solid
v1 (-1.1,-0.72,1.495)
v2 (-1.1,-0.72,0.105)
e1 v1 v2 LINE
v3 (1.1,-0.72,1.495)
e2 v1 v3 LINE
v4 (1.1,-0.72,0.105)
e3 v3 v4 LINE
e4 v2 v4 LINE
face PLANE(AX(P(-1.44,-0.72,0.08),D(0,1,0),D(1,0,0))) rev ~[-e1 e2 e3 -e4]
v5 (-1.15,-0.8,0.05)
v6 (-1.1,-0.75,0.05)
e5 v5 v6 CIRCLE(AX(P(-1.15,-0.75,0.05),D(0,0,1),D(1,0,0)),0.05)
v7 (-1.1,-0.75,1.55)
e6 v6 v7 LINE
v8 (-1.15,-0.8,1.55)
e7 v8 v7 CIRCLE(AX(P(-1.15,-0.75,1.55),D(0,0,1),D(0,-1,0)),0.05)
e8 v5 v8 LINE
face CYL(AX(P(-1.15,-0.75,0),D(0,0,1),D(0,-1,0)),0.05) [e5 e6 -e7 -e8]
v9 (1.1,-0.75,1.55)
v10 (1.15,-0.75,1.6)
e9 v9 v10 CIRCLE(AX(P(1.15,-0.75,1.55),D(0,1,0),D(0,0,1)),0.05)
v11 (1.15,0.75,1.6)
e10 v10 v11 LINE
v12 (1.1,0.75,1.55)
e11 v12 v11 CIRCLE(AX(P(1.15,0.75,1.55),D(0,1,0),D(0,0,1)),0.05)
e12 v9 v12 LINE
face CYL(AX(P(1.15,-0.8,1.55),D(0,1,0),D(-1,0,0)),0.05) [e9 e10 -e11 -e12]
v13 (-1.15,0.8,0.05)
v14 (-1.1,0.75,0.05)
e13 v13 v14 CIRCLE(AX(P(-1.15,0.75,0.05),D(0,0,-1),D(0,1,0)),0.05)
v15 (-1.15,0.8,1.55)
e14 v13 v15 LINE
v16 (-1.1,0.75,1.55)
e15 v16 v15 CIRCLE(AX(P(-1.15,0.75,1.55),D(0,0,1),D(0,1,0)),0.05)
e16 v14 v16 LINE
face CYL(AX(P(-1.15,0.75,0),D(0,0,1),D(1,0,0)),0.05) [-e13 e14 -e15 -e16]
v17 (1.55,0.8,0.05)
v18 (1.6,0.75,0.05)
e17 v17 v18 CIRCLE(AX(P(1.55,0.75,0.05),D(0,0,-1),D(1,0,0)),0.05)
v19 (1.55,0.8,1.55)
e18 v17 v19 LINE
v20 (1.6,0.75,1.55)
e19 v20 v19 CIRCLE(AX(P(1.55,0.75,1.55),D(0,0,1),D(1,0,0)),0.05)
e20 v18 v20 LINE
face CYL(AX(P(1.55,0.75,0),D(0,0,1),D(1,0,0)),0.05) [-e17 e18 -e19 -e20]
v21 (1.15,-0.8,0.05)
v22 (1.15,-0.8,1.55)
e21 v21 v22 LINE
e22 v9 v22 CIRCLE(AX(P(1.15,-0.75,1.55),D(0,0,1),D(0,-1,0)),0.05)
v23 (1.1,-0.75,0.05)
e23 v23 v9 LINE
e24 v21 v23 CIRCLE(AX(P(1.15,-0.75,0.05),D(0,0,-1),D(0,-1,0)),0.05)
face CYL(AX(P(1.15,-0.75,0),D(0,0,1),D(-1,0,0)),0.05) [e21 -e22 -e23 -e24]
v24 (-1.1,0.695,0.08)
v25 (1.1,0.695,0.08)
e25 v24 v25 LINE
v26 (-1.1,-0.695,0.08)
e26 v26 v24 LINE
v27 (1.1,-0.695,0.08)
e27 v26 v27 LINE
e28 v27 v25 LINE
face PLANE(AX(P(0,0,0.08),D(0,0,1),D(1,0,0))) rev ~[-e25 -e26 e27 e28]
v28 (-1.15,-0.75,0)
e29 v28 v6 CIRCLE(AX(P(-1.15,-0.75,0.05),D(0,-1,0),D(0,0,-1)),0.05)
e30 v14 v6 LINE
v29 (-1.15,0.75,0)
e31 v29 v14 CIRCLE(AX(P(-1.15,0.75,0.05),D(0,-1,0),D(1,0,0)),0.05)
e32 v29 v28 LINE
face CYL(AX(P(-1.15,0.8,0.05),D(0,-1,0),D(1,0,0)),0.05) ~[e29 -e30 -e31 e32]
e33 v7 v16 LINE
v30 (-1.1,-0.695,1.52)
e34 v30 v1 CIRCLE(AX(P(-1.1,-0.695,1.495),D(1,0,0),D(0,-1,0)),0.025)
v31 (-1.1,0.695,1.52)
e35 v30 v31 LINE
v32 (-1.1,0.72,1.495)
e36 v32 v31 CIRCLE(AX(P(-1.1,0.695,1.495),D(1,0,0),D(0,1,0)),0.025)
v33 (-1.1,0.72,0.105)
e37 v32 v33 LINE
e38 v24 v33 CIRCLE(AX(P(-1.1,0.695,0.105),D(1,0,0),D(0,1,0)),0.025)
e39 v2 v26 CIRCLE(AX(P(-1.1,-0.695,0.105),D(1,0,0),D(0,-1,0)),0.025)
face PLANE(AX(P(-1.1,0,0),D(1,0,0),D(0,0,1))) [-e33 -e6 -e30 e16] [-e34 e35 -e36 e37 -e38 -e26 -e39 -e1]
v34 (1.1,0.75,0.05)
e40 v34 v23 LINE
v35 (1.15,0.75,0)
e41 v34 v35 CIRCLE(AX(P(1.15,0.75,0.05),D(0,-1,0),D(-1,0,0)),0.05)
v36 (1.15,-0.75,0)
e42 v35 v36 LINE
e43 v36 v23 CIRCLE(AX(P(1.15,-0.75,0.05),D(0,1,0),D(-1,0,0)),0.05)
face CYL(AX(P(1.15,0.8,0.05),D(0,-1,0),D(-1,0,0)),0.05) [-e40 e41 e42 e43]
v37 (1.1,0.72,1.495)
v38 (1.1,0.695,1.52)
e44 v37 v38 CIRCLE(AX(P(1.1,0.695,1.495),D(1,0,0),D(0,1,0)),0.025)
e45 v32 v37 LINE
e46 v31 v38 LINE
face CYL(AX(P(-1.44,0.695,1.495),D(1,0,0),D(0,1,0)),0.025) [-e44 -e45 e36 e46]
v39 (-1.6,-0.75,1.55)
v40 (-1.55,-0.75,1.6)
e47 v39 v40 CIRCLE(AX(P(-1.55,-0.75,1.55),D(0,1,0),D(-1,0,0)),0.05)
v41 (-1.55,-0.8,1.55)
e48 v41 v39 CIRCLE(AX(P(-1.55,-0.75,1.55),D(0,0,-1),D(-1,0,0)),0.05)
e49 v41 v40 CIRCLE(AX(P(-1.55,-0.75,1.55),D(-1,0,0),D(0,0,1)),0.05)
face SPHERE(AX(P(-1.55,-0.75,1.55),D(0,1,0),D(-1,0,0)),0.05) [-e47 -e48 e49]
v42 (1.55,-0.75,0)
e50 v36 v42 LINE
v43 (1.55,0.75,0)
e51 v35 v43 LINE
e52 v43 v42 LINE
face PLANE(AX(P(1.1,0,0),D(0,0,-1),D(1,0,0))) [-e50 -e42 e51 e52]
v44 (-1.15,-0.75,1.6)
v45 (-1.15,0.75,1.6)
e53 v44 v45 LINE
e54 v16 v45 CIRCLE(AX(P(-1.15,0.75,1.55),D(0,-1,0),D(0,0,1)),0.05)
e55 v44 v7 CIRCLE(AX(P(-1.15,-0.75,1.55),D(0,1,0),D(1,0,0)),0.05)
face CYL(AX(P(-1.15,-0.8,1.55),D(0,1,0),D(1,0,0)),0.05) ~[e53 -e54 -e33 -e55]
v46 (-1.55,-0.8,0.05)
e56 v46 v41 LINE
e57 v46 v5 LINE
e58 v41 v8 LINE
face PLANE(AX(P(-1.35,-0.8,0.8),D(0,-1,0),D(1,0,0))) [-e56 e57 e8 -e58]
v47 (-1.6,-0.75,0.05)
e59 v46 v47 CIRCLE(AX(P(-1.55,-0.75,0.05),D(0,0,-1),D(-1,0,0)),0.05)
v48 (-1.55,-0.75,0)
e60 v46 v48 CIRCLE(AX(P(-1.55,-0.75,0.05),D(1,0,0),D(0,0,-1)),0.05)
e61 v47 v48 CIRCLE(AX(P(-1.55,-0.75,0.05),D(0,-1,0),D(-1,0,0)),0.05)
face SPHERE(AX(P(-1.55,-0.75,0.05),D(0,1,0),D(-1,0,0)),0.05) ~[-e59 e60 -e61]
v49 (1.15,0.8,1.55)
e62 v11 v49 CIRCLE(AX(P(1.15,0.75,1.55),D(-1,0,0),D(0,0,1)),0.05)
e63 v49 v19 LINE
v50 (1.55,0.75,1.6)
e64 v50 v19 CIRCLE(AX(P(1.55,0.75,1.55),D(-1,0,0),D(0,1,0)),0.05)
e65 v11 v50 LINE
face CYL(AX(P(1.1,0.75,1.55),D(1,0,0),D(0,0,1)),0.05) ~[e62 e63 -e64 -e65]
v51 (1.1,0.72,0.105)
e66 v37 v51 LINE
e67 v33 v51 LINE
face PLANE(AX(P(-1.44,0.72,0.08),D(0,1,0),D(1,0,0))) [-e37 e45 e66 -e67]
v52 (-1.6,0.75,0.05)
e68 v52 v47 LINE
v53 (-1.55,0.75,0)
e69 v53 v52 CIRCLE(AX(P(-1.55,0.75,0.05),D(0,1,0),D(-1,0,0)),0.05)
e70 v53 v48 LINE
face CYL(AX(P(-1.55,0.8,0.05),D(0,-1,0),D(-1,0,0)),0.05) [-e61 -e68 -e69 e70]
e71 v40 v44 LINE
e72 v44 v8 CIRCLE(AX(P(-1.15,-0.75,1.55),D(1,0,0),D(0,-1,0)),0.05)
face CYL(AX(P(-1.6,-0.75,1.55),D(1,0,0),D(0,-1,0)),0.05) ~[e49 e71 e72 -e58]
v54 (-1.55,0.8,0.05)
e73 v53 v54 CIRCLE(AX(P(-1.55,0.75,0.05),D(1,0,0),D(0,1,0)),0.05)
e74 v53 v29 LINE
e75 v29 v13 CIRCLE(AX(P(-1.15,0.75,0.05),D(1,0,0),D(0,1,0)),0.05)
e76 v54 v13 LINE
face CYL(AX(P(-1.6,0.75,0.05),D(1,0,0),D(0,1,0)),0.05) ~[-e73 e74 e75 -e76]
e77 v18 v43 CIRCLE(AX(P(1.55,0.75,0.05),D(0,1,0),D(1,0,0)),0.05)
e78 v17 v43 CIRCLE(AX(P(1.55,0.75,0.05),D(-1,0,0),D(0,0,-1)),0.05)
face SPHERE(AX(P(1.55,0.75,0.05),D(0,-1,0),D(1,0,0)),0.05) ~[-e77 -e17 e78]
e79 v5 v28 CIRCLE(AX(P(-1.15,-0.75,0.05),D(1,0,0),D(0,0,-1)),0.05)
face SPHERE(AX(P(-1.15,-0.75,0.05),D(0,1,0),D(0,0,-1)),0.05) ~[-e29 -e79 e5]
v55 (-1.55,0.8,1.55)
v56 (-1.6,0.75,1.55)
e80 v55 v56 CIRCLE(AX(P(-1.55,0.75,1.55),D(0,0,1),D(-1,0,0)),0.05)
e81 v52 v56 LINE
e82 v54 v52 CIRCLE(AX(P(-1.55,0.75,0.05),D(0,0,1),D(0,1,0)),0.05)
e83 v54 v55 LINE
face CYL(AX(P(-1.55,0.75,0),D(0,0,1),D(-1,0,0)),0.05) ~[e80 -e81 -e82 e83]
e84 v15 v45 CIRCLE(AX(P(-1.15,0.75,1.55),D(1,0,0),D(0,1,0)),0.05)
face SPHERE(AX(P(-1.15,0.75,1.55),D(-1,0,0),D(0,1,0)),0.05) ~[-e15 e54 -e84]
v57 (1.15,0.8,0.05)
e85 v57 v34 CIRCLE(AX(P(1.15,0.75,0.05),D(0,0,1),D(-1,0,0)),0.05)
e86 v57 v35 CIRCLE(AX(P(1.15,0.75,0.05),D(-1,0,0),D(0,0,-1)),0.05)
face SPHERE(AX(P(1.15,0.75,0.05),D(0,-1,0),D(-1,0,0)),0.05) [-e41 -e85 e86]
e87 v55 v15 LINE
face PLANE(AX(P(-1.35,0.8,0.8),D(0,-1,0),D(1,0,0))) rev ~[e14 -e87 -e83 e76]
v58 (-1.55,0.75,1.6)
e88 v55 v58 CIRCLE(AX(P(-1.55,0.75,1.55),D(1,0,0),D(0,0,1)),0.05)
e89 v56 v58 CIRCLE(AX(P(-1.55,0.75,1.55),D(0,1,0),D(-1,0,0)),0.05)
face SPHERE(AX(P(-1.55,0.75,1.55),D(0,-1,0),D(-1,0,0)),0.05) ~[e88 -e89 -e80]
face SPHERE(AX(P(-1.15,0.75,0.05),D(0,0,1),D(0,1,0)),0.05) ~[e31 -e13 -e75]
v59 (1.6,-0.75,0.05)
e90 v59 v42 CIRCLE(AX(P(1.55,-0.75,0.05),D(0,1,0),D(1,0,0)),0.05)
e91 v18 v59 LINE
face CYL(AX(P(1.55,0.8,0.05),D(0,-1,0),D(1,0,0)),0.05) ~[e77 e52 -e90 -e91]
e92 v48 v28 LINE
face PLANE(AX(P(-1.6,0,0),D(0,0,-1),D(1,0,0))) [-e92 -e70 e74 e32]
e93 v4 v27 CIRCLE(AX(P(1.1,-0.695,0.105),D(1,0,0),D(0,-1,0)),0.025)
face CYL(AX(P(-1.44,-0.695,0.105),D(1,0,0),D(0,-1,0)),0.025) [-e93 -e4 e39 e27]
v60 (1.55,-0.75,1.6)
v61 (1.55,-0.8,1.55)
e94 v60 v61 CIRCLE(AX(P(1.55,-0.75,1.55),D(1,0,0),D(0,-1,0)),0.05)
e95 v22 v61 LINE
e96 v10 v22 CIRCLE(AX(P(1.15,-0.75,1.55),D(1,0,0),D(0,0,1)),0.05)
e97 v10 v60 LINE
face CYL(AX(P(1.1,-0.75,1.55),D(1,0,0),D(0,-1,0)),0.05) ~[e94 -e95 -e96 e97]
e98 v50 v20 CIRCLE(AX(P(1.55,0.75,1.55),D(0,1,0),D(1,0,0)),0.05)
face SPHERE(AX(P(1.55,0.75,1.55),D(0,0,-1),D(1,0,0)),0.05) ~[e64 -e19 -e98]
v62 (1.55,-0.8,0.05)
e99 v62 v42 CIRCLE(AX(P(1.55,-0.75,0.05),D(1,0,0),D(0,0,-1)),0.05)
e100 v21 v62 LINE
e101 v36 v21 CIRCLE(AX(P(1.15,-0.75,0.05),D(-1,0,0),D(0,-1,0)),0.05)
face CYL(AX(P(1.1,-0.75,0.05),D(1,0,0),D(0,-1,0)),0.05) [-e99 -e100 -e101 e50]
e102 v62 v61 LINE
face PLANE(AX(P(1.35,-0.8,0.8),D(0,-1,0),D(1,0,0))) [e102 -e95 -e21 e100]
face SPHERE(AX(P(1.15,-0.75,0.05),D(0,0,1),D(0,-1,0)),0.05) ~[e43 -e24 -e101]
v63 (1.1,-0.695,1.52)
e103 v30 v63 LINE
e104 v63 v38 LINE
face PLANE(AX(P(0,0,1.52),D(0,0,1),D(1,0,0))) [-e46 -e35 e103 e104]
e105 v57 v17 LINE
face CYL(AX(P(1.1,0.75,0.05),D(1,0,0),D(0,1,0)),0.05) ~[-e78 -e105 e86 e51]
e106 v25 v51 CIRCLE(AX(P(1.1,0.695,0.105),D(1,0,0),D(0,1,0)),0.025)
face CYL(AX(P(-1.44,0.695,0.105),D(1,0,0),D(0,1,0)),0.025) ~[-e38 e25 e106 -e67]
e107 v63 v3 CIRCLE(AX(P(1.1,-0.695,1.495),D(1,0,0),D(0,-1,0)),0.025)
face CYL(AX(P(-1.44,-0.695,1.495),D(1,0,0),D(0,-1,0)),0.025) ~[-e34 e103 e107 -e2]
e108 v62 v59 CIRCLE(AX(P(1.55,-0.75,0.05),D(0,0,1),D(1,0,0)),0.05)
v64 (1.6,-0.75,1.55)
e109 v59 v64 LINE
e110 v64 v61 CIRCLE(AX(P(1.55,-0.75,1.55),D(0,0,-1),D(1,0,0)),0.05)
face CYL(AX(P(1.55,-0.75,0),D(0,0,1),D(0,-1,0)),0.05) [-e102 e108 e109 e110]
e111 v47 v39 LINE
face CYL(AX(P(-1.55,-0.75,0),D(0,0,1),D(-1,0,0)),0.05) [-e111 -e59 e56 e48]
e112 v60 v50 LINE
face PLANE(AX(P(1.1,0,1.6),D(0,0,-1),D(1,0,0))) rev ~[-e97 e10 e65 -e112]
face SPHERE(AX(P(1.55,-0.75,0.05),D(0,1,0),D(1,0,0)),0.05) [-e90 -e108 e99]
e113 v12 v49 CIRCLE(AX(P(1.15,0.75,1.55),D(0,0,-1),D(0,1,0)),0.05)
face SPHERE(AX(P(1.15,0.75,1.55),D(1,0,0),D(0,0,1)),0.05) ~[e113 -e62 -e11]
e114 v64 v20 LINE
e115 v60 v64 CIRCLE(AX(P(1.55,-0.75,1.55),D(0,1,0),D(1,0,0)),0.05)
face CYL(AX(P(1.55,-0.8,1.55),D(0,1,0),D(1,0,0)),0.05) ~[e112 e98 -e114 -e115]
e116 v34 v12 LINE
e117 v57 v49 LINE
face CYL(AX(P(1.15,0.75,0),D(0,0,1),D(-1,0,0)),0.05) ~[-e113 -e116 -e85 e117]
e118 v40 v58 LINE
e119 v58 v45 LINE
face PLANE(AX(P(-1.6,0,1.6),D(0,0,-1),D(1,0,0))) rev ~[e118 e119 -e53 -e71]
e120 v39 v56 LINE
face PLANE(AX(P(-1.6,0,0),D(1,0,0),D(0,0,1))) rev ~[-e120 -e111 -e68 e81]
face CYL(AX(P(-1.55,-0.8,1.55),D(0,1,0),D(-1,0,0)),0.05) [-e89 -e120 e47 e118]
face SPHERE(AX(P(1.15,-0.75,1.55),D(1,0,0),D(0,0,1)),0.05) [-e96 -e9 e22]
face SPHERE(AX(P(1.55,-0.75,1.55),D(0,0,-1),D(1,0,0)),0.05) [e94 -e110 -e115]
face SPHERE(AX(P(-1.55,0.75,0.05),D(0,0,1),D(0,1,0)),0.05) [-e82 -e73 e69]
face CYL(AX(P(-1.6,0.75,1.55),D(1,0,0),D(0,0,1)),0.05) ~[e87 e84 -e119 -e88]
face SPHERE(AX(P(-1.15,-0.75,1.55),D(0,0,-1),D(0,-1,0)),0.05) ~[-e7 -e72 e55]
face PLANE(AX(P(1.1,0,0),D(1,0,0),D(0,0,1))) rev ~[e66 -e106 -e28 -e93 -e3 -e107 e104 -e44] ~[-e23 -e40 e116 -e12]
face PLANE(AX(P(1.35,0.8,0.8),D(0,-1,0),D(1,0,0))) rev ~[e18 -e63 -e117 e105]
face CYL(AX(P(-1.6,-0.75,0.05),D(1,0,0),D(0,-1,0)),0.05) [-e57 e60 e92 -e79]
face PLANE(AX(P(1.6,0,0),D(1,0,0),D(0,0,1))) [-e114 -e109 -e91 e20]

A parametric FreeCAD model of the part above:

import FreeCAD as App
import Part
import Sketcher

V = App.Vector


def edges_at(feature, points):
    """Names of the edges that pass closest to the given points."""
    edges = feature.Shape.Edges
    near = lambda p: min(range(len(edges)), key=lambda i: edges[i].distToShape(Part.Vertex(*p))[0])
    return sorted({f"Edge{near(p) + 1}" for p in points})


def add_polygon(sketch, points):
    """Adds a closed chain of lines whose ends are joined by coincident constraints."""
    first, n = sketch.GeometryCount, len(points)
    for a, b in zip(points, points[1:] + points[:1]):
        sketch.addGeometry(Part.LineSegment(App.Vector(*a, 0), App.Vector(*b, 0)), False)
    for i in range(n):
        sketch.addConstraint(Sketcher.Constraint("Coincident", first + i, 2, first + (i + 1) % n, 1))

doc = App.newDocument("Part")
body = doc.addObject("PartDesign::Body", "Body")

# Sketch on XZ plane
sketch1 = doc.addObject("Sketcher::SketchObject", "Sketch")
body.addObject(sketch1)
sketch1.AttachmentSupport = (doc.XZ_Plane, [""])
sketch1.MapMode = "FlatFace"
add_polygon(sketch1, [(-1.6, 1.6), (-1.6, 0), (-1.1, 0), (-1.1, 1.6)])  # lines 0-3
sketch1.addConstraint(Sketcher.Constraint("Vertical", 0))
sketch1.addConstraint(Sketcher.Constraint("Horizontal", 1))
sketch1.addConstraint(Sketcher.Constraint("Vertical", 2))
sketch1.addConstraint(Sketcher.Constraint("Horizontal", 3))
sketch1.addConstraint(Sketcher.Constraint("PointOnObject", 0, 2, -1))
sketch1.addConstraint(Sketcher.Constraint("DistanceX", 1, 1, 1, 2, 0.5))
sketch1.addConstraint(Sketcher.Constraint("DistanceY", 0, 2, 0, 1, 1.6))
sketch1.addConstraint(Sketcher.Constraint("DistanceX", 0, 2, -1, 1, 1.6))
pad1 = doc.addObject("PartDesign::Pad", "Pad")
body.addObject(pad1)
pad1.Profile = sketch1
pad1.Length = 1.6
pad1.Midplane = True
doc.recompute()

fillet = doc.addObject("PartDesign::Fillet", "Fillet")
body.addObject(fillet)
fillet.Base = (pad1, ["Edge1"])
fillet.UseAllEdges = True
fillet.Radius = 0.05
body2 = doc.addObject("PartDesign::Body", "Body001")

# Sketch on XZ plane
sketch2 = doc.addObject("Sketcher::SketchObject", "Sketch001")
body2.addObject(sketch2)
sketch2.AttachmentSupport = (doc.getObject("XZ_Plane001"), [""])
sketch2.MapMode = "FlatFace"
add_polygon(sketch2, [(1.1, 1.6), (1.1, 0), (1.6, 0), (1.6, 1.6)])  # lines 0-3
sketch2.addConstraint(Sketcher.Constraint("Vertical", 0))
sketch2.addConstraint(Sketcher.Constraint("Horizontal", 1))
sketch2.addConstraint(Sketcher.Constraint("Vertical", 2))
sketch2.addConstraint(Sketcher.Constraint("Horizontal", 3))
sketch2.addConstraint(Sketcher.Constraint("PointOnObject", 0, 2, -1))
sketch2.addConstraint(Sketcher.Constraint("DistanceX", 1, 1, 1, 2, 0.5))
sketch2.addConstraint(Sketcher.Constraint("DistanceY", 0, 2, 0, 1, 1.6))
sketch2.addConstraint(Sketcher.Constraint("DistanceX", -1, 1, 0, 2, 1.1))
pad2 = doc.addObject("PartDesign::Pad", "Pad001")
body2.addObject(pad2)
pad2.Profile = sketch2
pad2.Length = 1.6
pad2.Midplane = True
doc.recompute()

fillet2 = doc.addObject("PartDesign::Fillet", "Fillet001")
body2.addObject(fillet2)
fillet2.Base = (pad2, ["Edge1"])
fillet2.UseAllEdges = True
fillet2.Radius = 0.05
body3 = doc.addObject("PartDesign::Body", "Body002")

# Sketch on XY plane
sketch3 = doc.addObject("Sketcher::SketchObject", "Sketch002")
body3.addObject(sketch3)
sketch3.AttachmentSupport = (doc.getObject("XY_Plane002"), [""])
sketch3.MapMode = "FlatFace"
sketch3.AttachmentOffset = App.Placement(V(0, 0, 0.08), App.Rotation())
add_polygon(sketch3, [(-1.4, 0.7), (-1.4, -0.7), (1.4, -0.7), (1.4, 0.7)])  # lines 0-3
sketch3.addConstraint(Sketcher.Constraint("Vertical", 0))
sketch3.addConstraint(Sketcher.Constraint("Horizontal", 1))
sketch3.addConstraint(Sketcher.Constraint("Vertical", 2))
sketch3.addConstraint(Sketcher.Constraint("Horizontal", 3))
sketch3.addConstraint(Sketcher.Constraint("Symmetric", 0, 2, 2, 2, -1, 1))
sketch3.addConstraint(Sketcher.Constraint("DistanceX", 1, 1, 1, 2, 2.88))
sketch3.addConstraint(Sketcher.Constraint("DistanceY", 0, 2, 0, 1, 1.44))
pad3 = doc.addObject("PartDesign::Pad", "Pad002")
body3.addObject(pad3)
pad3.Profile = sketch3
pad3.Length = 1.44
doc.recompute()

fillet3 = doc.addObject("PartDesign::Fillet", "Fillet002")
body3.addObject(fillet3)
fillet3.Base = (pad3, edges_at(pad3, [
    (0, -0.72, 1.52),
    (0, 0.72, 1.52),
    (0, -0.72, 0.08),
    (0, 0.72, 0.08),
]))
fillet3.Radius = 0.025
doc.recompute()

boolean = doc.addObject("PartDesign::Boolean", "Boolean")
body3.addObject(boolean)
boolean.Type = "Fuse"
boolean.addObjects([body])
doc.recompute()

boolean2 = doc.addObject("PartDesign::Boolean", "Boolean001")
body3.addObject(boolean2)
boolean2.Type = "Fuse"
boolean2.addObjects([body2])

doc.recompute()
